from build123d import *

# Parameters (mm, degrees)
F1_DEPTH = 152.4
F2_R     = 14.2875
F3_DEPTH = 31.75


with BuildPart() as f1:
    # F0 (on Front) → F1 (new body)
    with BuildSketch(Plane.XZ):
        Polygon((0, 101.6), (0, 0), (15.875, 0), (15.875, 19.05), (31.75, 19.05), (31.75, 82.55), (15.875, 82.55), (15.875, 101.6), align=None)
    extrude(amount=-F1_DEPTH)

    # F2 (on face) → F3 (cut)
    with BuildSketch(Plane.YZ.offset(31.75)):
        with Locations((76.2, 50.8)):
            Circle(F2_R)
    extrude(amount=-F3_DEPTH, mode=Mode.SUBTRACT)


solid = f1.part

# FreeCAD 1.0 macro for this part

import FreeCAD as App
import Part
import Sketcher
from FreeCAD import Vector
Q = App.Units.Quantity


def add_polygon(sketch, points):
    """Adds a closed chain of lines whose ends are joined by coincident constraints."""
    first, n = sketch.GeometryCount, len(points)
    for a, b in zip(points, points[1:] + points[:1]):
        sketch.addGeometry(Part.LineSegment(App.Vector(*a, 0), App.Vector(*b, 0)), False)
    for i in range(n):
        sketch.addConstraint(Sketcher.Constraint("Coincident", first + i, 2, first + (i + 1) % n, 1))

doc = App.newDocument("Part")
body = doc.addObject("PartDesign::Body", "Body")

sketch1 = body.newObject("Sketcher::SketchObject", "Sketch")
sketch1.AttachmentSupport = (doc.getObject("XZ_Plane"), [""])
sketch1.MapMode = "FlatFace"
add_polygon(sketch1, [(0, 102), (0, 0), (16, 0), (16, 19), (32, 19), (32, 83), (16, 83), (16, 102)])
sketch1.addConstraint([
    Sketcher.Constraint("Vertical", 0),
    Sketcher.Constraint("Horizontal", 1),
    Sketcher.Constraint("Vertical", 2),
    Sketcher.Constraint("Horizontal", 3),
    Sketcher.Constraint("Vertical", 4),
    Sketcher.Constraint("Horizontal", 5),
    Sketcher.Constraint("Vertical", 6),
    Sketcher.Constraint("Horizontal", 7),
    Sketcher.Constraint("Coincident", 0, 2, -1, 1),
    Sketcher.Constraint("Vertical", 2, 2, 5, 2),
    Sketcher.Constraint("Equal", 1, 3),
    Sketcher.Constraint("Equal", 2, 6),
    Sketcher.Constraint("DistanceY", 0, 2, 0, 1, Q("4 in")),
    Sketcher.Constraint("DistanceY", 4, 1, 4, 2, Q("2.5 in")),
    Sketcher.Constraint("DistanceX", 1, 1, 1, 2, Q("0.625 in")),
])
pad1 = body.newObject("PartDesign::Pad", "Pad")
pad1.Profile = sketch1
pad1.Length = Q("6 in")
pad1.Reversed = True

sketch2 = body.newObject("Sketcher::SketchObject", "Sketch001")
sketch2.AttachmentSupport = (doc.getObject("YZ_Plane"), [""])
sketch2.MapMode = "FlatFace"
sketch2.AttachmentOffset = App.Placement(Vector(0, 0, 1.25 * 25.4), App.Rotation())
sketch2.addGeometry(Part.Circle(Vector(76, 51, 0), Vector(0, 0, 1), 14), False)
sketch2.addConstraint([
    Sketcher.Constraint("Diameter", 0, Q("1.125 in")),
    Sketcher.Constraint("DistanceX", -1, 1, 0, 3, Q("3 in")),
    Sketcher.Constraint("DistanceY", -1, 1, 0, 3, Q("2 in")),
])
pocket1 = body.newObject("PartDesign::Pocket", "Pocket")
pocket1.Profile = sketch2
pocket1.Length = Q("1.25 in")

doc.recompute()
